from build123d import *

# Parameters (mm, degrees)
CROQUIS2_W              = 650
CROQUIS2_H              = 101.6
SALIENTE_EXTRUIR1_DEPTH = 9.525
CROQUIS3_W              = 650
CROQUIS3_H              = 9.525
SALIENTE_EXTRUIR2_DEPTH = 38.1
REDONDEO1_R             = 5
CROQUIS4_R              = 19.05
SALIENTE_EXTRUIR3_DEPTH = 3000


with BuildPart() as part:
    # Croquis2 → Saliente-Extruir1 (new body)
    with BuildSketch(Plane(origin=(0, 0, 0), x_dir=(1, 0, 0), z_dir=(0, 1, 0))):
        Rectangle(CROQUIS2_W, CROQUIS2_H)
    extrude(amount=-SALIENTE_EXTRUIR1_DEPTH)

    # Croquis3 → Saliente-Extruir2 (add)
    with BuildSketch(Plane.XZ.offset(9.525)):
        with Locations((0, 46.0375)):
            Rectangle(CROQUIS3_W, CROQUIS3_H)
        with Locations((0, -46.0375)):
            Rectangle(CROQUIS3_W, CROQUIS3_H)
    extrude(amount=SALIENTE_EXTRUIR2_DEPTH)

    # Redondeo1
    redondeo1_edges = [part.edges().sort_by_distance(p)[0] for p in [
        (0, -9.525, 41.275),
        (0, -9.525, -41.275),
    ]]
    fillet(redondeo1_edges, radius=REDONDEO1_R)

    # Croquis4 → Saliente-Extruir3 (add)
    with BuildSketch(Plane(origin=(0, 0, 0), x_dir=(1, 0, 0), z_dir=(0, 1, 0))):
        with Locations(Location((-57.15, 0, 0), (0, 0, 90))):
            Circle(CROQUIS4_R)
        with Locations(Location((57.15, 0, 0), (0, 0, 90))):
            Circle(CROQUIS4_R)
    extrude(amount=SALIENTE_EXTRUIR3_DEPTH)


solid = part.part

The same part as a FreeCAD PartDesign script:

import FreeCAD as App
import Part
import Sketcher

V = App.Vector


def edges_at(feature, points):
    """Names of the edges that pass closest to the given points."""
    edges = feature.Shape.Edges
    near = lambda p: min(range(len(edges)), key=lambda i: edges[i].distToShape(Part.Vertex(*p))[0])
    return sorted({f"Edge{near(p) + 1}" for p in points})

doc = App.newDocument("Part")
params = doc.addObject("Spreadsheet::Sheet", "Params")
for row, (alias, value) in enumerate([
    ("sketch1_width", "650 mm"),
    ("sketch1_height", "101.6 mm"),
    ("pad1_length", "9.525 mm"),
    ("sketch2_width", "650 mm"),
    ("pad2_length", "38.1 mm"),
    ("fillet_radius", "5 mm"),
    ("sketch3_diameter", "38.1 mm"),
    ("pad3_length", "3000 mm"),
], start=1):
    params.set(f"A{row}", alias)
    params.set(f"B{row}", "=" + value)
    params.setAlias(f"B{row}", alias)

body = doc.addObject("PartDesign::Body", "Body")

# Sketch on XZ plane
sketch1 = body.newObject("Sketcher::SketchObject", "Sketch")
sketch1.AttachmentSupport = (doc.getObject("XZ_Plane"), [""])
sketch1.MapMode = "FlatFace"
sketch1.addGeometry([
    Part.LineSegment(V(-325, -50.8, 0), V(-325, 50.8, 0)),
    Part.LineSegment(V(-325, 50.8, 0), V(325, 50.8, 0)),
    Part.LineSegment(V(325, 50.8, 0), V(325, -50.8, 0)),
    Part.LineSegment(V(325, -50.8, 0), V(-325, -50.8, 0)),
], False)
sketch1.addConstraint([
    Sketcher.Constraint("Coincident", 0, 2, 1, 1),
    Sketcher.Constraint("Coincident", 1, 2, 2, 1),
    Sketcher.Constraint("Coincident", 2, 2, 3, 1),
    Sketcher.Constraint("Coincident", 3, 2, 0, 1),
    Sketcher.Constraint("Vertical", 0),
    Sketcher.Constraint("Horizontal", 1),
    Sketcher.Constraint("Vertical", 2),
    Sketcher.Constraint("Horizontal", 3),
    Sketcher.Constraint("Symmetric", 0, 2, 2, 2, -1, 1),
    Sketcher.Constraint("DistanceX", 1, 1, 1, 2, 650.0),
    Sketcher.Constraint("DistanceY", 0, 1, 0, 2, 101.6),
])
sketch1.setExpression("Constraints[9]", "Params.sketch1_width")
sketch1.setExpression("Constraints[10]", "Params.sketch1_height")
pad1 = body.newObject("PartDesign::Pad", "Pad")
pad1.Profile = sketch1
pad1.setExpression("Length", "Params.pad1_length")

# Sketch on XZ plane
sketch2 = body.newObject("Sketcher::SketchObject", "Sketch001")
sketch2.AttachmentSupport = (doc.getObject("XZ_Plane"), [""])
sketch2.MapMode = "FlatFace"
sketch2.AttachmentOffset = App.Placement(V(0, 0, 9.525), App.Rotation())
sketch2.addGeometry([
    Part.LineSegment(V(-325, 50.8, 0), V(-325, 41.275, 0)),  # 0
    Part.LineSegment(V(-325, 41.275, 0), V(325, 41.275, 0)),  # 1
    Part.LineSegment(V(325, 41.275, 0), V(325, 50.8, 0)),  # 2
    Part.LineSegment(V(325, 50.8, 0), V(-325, 50.8, 0)),  # 3
    Part.LineSegment(V(-325, -41.275, 0), V(-325, -50.8, 0)),  # 4
    Part.LineSegment(V(-325, -50.8, 0), V(325, -50.8, 0)),  # 5
    Part.LineSegment(V(325, -50.8, 0), V(325, -41.275, 0)),  # 6
    Part.LineSegment(V(325, -41.275, 0), V(-325, -41.275, 0)),  # 7
], False)
sketch2.addConstraint([
    Sketcher.Constraint("Coincident", 0, 2, 1, 1),
    Sketcher.Constraint("Coincident", 1, 2, 2, 1),
    Sketcher.Constraint("Coincident", 2, 2, 3, 1),
    Sketcher.Constraint("Coincident", 3, 2, 0, 1),
    Sketcher.Constraint("Coincident", 4, 2, 5, 1),
    Sketcher.Constraint("Coincident", 5, 2, 6, 1),
    Sketcher.Constraint("Coincident", 6, 2, 7, 1),
    Sketcher.Constraint("Coincident", 7, 2, 4, 1),
    Sketcher.Constraint("Vertical", 0),
    Sketcher.Constraint("Horizontal", 1),
    Sketcher.Constraint("Vertical", 2),
    Sketcher.Constraint("Horizontal", 3),
    Sketcher.Constraint("Vertical", 4),
    Sketcher.Constraint("Horizontal", 5),
    Sketcher.Constraint("Vertical", 6),
    Sketcher.Constraint("Horizontal", 7),
    Sketcher.Constraint("Symmetric", 2, 2, 4, 2, -1, 1),
    Sketcher.Constraint("Symmetric", 0, 2, 6, 2, -1, 1),
    Sketcher.Constraint("Vertical", 3, 2, 4, 2),
    Sketcher.Constraint("DistanceX", 1, 1, 1, 2, 650.0),
    Sketcher.Constraint("DistanceY", -1, 1, 2, 2, 50.8),
    Sketcher.Constraint("DistanceY", 0, 2, 0, 1, 9.525),
])
sketch2.setExpression("Constraints[19]", "Params.sketch2_width")
pad2 = body.newObject("PartDesign::Pad", "Pad001")
pad2.Profile = sketch2
pad2.setExpression("Length", "Params.pad2_length")
doc.recompute()

fillet = body.newObject("PartDesign::Fillet", "Fillet")
fillet.Base = (pad2, edges_at(pad2, [(0, -9.525, 41.275), (0, -9.525, -41.275)]))
fillet.setExpression("Radius", "Params.fillet_radius")

# Sketch on XZ plane
sketch3 = body.newObject("Sketcher::SketchObject", "Sketch002")
sketch3.AttachmentSupport = (doc.getObject("XZ_Plane"), [""])
sketch3.MapMode = "FlatFace"
sketch3.addGeometry([
    Part.Circle(V(-57.15, 0, 0), V(0, 0, 1), 19.05),
    Part.Circle(V(57.15, 0, 0), V(0, 0, 1), 19.05),
], False)
sketch3.addConstraint([
    Sketcher.Constraint("Equal", 0, 1),
    Sketcher.Constraint("Symmetric", 0, 3, 1, 3, -1, 1),
    Sketcher.Constraint("PointOnObject", 0, 3, -1),
    Sketcher.Constraint("Diameter", 0, 38.1),
    Sketcher.Constraint("DistanceX", 0, 3, 1, 3, 114.3),
])
sketch3.setExpression("Constraints[3]", "Params.sketch3_diameter")
pad3 = body.newObject("PartDesign::Pad", "Pad002")
pad3.Profile = sketch3
pad3.setExpression("Length", "Params.pad3_length")
pad3.Reversed = True

doc.recompute()
